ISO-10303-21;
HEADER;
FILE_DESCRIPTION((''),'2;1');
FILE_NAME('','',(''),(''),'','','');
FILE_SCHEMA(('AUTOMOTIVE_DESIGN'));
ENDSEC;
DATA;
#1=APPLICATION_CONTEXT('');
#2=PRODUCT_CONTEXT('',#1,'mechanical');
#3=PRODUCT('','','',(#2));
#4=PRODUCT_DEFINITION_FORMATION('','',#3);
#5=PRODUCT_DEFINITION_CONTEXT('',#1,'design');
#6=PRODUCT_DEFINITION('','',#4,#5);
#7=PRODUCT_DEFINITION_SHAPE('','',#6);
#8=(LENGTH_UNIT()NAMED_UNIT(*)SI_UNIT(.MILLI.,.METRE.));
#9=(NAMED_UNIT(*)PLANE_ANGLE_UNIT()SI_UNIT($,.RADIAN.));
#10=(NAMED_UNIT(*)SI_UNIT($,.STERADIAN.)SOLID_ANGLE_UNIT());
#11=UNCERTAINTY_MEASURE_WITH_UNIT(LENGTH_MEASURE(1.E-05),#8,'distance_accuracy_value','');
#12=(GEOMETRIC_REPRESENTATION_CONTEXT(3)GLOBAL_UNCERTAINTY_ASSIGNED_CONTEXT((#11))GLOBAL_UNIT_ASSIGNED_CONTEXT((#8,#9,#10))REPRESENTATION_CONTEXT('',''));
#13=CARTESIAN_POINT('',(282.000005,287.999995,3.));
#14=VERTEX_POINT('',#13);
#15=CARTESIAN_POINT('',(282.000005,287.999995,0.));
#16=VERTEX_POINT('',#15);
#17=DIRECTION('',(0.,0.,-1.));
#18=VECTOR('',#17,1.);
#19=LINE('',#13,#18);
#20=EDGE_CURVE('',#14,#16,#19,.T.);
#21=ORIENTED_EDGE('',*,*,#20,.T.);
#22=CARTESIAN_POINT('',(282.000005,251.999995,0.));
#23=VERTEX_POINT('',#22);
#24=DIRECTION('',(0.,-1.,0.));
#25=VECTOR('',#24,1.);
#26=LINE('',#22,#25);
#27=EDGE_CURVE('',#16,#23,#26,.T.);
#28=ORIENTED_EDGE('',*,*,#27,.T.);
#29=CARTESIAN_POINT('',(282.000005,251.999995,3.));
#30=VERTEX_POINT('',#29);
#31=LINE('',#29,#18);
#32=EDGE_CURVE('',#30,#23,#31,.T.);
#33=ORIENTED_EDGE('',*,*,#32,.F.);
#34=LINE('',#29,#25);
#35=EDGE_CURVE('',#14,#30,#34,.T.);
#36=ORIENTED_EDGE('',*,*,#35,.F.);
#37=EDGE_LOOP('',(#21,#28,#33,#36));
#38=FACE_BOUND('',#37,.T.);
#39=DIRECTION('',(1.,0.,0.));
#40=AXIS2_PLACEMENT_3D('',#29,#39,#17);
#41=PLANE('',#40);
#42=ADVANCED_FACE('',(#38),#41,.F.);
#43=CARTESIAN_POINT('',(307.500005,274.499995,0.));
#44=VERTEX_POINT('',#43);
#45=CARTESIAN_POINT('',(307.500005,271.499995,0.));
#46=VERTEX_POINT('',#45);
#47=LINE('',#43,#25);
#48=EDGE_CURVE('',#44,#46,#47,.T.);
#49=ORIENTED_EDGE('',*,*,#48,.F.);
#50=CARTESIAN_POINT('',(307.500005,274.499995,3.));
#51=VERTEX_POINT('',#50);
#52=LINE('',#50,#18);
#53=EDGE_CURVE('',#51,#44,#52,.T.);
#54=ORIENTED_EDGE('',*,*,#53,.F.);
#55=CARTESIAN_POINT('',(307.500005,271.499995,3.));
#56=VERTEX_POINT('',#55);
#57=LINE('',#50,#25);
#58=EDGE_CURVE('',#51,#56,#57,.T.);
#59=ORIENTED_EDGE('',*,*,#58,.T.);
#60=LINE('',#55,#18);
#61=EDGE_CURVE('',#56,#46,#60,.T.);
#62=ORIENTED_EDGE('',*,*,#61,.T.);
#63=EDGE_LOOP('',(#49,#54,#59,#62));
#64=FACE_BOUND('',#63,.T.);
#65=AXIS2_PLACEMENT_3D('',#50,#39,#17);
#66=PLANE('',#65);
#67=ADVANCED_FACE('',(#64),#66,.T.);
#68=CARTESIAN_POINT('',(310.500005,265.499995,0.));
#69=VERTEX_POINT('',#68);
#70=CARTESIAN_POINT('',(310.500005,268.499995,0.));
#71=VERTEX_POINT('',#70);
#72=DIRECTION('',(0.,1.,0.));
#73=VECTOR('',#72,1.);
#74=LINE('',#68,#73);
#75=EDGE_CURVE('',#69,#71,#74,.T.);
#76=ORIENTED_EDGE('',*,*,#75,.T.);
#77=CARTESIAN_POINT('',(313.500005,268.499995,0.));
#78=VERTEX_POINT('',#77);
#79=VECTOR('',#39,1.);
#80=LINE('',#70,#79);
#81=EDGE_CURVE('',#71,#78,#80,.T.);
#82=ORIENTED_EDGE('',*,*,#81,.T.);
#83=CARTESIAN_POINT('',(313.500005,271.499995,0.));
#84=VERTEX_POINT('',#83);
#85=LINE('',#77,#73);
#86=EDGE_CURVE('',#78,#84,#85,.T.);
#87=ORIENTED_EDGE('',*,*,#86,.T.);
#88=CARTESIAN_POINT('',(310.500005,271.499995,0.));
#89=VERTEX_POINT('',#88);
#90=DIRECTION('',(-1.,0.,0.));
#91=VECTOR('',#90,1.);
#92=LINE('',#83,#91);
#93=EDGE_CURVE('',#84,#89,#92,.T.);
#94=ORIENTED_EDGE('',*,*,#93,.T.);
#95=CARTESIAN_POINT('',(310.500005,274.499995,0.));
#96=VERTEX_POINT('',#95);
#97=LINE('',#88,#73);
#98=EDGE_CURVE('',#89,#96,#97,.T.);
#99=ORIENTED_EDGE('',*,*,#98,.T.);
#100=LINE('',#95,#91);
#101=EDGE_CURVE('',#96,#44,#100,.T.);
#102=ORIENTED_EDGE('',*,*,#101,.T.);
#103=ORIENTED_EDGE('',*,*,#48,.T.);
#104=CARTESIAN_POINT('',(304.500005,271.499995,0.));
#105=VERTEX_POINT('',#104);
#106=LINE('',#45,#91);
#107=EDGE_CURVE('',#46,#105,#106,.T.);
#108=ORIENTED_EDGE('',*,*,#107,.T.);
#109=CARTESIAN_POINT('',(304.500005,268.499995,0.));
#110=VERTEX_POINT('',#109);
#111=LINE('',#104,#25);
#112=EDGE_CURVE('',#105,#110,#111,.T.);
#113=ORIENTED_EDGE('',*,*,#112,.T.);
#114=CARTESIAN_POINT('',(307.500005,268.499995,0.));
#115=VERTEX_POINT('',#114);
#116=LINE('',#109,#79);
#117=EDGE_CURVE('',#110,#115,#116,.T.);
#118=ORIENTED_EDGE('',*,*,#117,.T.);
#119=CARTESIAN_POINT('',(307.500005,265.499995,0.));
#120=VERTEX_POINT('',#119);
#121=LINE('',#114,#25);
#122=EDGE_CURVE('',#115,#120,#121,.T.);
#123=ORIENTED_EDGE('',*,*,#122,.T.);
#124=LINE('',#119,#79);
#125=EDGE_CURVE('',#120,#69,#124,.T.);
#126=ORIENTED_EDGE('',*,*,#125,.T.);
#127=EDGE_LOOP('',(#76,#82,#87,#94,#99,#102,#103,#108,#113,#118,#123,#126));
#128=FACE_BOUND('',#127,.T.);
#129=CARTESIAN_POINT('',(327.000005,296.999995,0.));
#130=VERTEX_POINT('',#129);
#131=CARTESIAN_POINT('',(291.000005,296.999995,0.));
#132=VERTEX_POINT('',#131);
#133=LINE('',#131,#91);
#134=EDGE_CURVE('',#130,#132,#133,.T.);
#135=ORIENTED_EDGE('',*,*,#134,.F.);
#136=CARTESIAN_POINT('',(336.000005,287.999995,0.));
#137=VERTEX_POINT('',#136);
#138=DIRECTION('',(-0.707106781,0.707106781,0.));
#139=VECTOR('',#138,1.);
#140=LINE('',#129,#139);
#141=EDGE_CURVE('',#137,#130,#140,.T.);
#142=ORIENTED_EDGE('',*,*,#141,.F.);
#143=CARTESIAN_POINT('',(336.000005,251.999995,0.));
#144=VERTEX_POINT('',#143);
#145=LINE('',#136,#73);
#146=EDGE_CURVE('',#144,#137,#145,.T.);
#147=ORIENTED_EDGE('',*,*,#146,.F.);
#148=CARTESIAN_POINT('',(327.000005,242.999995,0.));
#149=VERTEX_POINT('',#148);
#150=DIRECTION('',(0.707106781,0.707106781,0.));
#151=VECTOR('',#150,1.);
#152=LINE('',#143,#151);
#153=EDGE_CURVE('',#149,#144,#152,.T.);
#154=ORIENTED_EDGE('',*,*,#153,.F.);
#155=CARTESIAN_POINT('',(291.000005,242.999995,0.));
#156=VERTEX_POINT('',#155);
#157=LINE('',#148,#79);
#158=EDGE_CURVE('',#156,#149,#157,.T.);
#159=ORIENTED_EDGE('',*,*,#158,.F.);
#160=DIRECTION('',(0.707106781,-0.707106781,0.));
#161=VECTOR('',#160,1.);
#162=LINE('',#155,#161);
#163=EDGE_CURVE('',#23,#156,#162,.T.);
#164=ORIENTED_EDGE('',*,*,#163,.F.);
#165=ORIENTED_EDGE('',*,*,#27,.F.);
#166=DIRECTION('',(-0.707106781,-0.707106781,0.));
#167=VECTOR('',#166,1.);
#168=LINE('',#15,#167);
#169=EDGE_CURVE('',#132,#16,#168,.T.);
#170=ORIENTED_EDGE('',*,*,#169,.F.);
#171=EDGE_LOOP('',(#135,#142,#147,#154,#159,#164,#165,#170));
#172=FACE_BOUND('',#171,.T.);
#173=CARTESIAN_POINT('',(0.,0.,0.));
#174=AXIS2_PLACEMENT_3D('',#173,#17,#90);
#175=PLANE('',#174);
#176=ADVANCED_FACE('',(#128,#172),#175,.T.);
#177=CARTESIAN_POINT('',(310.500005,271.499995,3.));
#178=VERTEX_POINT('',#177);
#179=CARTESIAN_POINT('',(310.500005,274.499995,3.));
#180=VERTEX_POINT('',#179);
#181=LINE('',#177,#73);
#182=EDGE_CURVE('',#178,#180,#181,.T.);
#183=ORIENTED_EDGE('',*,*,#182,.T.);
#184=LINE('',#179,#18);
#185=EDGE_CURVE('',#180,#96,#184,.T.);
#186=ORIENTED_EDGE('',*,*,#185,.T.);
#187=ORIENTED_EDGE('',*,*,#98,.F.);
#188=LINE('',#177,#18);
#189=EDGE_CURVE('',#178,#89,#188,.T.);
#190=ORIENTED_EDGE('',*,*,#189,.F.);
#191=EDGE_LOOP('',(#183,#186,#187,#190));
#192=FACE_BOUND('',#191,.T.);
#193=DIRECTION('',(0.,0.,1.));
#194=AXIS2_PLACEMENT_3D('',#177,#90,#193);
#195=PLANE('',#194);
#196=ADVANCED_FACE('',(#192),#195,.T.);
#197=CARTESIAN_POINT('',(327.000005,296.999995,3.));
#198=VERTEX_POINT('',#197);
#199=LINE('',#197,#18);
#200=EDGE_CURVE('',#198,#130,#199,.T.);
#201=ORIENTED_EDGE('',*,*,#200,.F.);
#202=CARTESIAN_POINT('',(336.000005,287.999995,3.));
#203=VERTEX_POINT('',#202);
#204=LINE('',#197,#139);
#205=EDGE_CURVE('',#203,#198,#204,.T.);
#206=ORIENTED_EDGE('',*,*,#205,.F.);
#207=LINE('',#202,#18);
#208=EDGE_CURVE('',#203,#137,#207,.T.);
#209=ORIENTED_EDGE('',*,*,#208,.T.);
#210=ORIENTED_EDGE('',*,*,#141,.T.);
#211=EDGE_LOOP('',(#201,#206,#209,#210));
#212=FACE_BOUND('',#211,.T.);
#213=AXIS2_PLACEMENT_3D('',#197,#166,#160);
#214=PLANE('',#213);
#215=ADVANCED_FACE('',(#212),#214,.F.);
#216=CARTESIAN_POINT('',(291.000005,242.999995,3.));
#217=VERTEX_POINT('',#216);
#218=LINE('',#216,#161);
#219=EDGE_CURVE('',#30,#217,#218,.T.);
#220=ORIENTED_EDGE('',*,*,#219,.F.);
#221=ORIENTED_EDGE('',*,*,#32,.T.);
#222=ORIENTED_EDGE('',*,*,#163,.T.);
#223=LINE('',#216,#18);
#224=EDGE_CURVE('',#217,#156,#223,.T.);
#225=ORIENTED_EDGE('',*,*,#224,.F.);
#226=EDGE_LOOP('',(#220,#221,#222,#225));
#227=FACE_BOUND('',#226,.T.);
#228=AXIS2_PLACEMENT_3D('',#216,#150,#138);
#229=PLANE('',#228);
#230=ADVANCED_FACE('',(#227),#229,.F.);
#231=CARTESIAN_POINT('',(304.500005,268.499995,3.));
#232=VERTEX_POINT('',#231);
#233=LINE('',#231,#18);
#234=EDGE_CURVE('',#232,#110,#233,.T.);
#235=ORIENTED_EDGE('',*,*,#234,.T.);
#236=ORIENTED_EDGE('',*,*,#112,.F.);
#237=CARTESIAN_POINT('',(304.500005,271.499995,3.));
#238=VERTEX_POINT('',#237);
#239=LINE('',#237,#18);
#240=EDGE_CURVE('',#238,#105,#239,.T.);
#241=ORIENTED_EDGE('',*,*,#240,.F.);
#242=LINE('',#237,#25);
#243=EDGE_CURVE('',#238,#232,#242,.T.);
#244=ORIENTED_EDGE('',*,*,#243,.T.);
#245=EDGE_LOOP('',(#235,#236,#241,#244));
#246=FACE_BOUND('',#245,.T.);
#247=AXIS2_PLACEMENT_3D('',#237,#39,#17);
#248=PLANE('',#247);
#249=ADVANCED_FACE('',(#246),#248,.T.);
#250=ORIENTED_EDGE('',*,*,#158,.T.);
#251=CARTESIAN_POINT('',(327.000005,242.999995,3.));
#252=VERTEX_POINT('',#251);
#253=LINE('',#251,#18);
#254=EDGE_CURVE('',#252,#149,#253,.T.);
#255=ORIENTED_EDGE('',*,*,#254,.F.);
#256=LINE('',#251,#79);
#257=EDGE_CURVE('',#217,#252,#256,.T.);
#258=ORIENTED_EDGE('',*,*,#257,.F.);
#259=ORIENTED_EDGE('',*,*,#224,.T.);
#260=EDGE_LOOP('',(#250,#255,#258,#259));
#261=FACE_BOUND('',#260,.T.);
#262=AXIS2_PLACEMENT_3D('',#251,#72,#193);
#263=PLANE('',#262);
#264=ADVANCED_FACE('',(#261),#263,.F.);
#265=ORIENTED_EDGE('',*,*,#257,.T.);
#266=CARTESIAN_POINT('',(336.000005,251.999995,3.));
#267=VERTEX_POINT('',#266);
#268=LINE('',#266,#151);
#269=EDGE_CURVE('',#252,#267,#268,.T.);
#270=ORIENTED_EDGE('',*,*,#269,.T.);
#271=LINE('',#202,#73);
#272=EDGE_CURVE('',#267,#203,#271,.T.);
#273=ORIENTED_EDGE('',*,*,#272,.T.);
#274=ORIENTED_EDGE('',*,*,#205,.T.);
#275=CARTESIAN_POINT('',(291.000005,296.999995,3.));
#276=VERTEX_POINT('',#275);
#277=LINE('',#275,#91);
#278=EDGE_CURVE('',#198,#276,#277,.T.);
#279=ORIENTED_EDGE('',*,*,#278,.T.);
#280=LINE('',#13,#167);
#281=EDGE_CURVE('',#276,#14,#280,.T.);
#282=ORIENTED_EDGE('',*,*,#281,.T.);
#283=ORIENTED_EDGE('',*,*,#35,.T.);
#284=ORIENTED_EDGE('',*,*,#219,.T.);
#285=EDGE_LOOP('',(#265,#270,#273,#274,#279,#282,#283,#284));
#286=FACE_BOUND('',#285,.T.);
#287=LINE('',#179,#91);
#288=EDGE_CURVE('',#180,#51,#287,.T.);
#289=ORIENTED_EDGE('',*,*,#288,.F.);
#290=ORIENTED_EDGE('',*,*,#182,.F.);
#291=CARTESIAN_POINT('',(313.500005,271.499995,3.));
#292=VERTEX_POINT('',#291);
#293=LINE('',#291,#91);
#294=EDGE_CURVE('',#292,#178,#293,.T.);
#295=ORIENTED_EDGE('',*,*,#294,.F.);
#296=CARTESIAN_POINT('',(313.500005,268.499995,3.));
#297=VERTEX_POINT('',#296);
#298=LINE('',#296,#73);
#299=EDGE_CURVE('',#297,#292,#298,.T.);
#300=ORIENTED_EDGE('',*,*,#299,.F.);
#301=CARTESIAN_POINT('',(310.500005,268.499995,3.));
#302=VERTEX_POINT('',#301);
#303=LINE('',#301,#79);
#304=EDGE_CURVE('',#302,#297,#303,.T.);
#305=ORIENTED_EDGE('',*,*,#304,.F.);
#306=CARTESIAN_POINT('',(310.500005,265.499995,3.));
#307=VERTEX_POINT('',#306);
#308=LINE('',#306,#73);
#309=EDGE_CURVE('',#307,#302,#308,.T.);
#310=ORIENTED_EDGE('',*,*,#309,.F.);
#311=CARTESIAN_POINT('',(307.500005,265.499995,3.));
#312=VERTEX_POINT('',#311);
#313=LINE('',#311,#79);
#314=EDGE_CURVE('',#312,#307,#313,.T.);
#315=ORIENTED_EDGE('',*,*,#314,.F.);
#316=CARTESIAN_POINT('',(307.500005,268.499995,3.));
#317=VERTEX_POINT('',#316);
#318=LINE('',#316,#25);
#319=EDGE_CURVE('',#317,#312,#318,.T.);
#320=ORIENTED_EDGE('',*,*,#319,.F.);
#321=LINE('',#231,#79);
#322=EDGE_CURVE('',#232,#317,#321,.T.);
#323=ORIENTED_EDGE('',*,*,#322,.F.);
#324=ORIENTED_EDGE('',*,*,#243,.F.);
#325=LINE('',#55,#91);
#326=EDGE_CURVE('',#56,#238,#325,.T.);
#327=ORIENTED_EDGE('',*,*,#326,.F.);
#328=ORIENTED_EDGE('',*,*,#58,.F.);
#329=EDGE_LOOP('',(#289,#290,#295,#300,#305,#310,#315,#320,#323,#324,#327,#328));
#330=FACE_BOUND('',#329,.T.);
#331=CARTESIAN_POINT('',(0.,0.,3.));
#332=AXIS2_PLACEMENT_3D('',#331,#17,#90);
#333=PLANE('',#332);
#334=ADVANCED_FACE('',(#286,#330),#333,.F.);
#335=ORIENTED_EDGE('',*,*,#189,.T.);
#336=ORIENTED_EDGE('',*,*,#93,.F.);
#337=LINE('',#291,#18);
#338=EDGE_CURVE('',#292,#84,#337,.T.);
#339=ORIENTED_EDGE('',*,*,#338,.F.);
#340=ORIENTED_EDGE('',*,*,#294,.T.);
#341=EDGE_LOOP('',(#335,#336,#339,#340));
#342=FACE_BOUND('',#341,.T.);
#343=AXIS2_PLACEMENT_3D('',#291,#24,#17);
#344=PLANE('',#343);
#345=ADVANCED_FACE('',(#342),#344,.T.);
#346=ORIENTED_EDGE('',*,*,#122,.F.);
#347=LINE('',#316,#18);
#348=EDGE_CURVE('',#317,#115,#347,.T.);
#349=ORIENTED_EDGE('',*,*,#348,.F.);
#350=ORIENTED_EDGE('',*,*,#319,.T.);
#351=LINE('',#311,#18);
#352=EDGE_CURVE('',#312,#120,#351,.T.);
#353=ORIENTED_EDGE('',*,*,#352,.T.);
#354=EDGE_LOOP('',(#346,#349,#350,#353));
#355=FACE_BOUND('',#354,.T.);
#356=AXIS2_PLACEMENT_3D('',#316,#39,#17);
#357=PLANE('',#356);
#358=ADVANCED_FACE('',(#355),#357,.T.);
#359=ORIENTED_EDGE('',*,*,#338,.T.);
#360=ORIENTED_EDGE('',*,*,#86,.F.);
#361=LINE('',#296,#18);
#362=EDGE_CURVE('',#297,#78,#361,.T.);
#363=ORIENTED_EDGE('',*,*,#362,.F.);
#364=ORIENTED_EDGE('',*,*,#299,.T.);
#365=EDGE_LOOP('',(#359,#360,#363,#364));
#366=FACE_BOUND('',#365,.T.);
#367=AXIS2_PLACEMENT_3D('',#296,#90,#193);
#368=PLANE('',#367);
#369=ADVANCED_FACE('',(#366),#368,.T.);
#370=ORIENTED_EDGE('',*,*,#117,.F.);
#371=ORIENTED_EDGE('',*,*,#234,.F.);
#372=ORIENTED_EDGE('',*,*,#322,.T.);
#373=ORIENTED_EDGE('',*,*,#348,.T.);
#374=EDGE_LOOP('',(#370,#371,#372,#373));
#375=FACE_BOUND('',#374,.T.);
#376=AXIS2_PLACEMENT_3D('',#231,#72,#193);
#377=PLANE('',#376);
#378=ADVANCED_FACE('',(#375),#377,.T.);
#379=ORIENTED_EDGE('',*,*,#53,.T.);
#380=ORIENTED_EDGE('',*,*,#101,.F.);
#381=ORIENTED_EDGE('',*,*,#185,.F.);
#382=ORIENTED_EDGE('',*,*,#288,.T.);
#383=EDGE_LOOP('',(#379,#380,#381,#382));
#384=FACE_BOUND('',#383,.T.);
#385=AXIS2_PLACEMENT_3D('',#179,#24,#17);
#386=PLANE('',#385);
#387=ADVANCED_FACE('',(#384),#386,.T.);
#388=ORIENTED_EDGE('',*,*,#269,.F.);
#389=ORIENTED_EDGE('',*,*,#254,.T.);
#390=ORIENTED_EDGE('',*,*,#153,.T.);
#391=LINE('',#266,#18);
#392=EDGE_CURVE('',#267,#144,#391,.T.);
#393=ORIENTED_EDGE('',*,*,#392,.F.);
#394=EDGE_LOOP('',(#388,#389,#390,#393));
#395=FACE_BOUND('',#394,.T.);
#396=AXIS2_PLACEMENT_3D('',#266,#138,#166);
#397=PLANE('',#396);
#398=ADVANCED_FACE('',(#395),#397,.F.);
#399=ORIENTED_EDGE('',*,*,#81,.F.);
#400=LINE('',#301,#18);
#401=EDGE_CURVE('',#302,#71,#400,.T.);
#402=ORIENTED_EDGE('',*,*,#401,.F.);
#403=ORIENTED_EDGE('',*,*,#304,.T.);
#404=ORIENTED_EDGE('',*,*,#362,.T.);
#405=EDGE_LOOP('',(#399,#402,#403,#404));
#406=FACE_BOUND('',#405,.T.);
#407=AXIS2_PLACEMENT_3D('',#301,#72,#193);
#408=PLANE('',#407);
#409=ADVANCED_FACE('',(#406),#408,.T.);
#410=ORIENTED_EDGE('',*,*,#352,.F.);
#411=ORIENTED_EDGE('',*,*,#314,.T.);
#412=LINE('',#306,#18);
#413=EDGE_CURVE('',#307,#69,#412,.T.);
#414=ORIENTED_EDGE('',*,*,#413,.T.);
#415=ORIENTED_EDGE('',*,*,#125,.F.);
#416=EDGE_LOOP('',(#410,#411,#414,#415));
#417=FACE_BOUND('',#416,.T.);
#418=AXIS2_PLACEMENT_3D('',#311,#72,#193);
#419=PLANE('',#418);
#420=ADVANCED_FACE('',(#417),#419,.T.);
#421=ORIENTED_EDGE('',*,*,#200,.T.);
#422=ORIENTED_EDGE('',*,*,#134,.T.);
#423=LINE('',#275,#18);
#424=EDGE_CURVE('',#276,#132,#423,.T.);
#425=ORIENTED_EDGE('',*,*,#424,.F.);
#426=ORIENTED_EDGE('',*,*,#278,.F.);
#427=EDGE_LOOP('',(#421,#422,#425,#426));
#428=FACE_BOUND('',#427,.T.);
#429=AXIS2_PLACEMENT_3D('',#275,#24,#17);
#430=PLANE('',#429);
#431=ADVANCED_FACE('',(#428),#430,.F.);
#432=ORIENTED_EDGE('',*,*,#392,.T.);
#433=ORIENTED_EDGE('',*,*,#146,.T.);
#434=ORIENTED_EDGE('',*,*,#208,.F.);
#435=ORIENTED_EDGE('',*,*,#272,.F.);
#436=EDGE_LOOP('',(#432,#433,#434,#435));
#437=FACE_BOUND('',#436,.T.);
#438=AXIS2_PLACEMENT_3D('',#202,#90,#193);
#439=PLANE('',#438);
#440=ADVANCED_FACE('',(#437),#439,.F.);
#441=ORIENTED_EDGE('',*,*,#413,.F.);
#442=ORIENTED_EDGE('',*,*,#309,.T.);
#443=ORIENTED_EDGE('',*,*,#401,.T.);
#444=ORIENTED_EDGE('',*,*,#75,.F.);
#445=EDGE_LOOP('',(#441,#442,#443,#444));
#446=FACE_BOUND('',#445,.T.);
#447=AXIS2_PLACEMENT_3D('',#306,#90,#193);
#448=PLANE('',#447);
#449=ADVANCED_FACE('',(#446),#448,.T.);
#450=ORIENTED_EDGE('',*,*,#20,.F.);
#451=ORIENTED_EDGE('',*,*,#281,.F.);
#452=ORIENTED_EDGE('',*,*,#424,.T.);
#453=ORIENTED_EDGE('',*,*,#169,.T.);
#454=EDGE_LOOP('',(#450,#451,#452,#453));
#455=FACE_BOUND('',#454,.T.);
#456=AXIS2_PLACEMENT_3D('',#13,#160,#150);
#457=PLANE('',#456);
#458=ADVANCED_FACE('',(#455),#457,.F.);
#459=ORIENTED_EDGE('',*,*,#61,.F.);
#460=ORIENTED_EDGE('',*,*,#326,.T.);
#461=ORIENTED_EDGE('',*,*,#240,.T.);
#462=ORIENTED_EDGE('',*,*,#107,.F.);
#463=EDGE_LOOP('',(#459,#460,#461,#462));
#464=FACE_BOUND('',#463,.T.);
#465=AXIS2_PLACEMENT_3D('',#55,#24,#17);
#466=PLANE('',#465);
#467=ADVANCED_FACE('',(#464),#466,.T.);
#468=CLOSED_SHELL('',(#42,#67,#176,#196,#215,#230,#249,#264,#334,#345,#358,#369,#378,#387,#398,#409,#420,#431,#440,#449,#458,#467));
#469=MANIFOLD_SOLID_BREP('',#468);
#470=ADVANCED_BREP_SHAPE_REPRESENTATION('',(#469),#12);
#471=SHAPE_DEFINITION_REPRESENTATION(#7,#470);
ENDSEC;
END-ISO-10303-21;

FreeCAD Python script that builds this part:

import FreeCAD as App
import Part
import Sketcher

V = App.Vector
Q = App.Units.Quantity


def add_polygon(sketch, points):
    """Adds a closed chain of lines whose ends are joined by coincident constraints."""
    first, n = sketch.GeometryCount, len(points)
    for a, b in zip(points, points[1:] + points[:1]):
        sketch.addGeometry(Part.LineSegment(App.Vector(*a, 0), App.Vector(*b, 0)), False)
    for i in range(n):
        sketch.addConstraint(Sketcher.Constraint("Coincident", first + i, 2, first + (i + 1) % n, 1))

doc = App.newDocument("Part")
params = doc.addObject("Spreadsheet::Sheet", "Params")
for row, (alias, value) in enumerate([
    ("sketch1_width", "36 mm"),
    ("sketch1_width2", "3 mm"),
    ("pad1_length", "3 mm"),
], start=1):
    params.set(f"A{row}", alias)
    params.set(f"B{row}", "=" + value)
    params.setAlias(f"B{row}", alias)

body = doc.addObject("PartDesign::Body", "Body")

# Sketch on XY plane
sketch1 = body.newObject("Sketcher::SketchObject", "Sketch")
sketch1.AttachmentSupport = (doc.getObject("XY_Plane"), [""])
sketch1.MapMode = "FlatFace"
add_polygon(sketch1, [(327, 243), (336, 252), (336, 288), (327, 297), (291, 297), (282, 288), (282, 252), (291, 243)])  # lines 0-7
add_polygon(sketch1, [(307.5, 274.5), (310.5, 274.5), (310.5, 271.5), (313.5, 271.5), (313.5, 268.5), (310.5, 268.5), (310.5, 265.5), (307.5, 265.5), (307.5, 268.5), (304.5, 268.5), (304.5, 271.5), (307.5, 271.5)])  # lines 8-19
sketch1.addConstraint(Sketcher.Constraint("Vertical", 1))
sketch1.addConstraint(Sketcher.Constraint("Horizontal", 3))
sketch1.addConstraint(Sketcher.Constraint("Vertical", 5))
sketch1.addConstraint(Sketcher.Constraint("Horizontal", 7))
sketch1.addConstraint(Sketcher.Constraint("Horizontal", 8))
sketch1.addConstraint(Sketcher.Constraint("Vertical", 9))
sketch1.addConstraint(Sketcher.Constraint("Horizontal", 10))
sketch1.addConstraint(Sketcher.Constraint("Vertical", 11))
sketch1.addConstraint(Sketcher.Constraint("Horizontal", 12))
sketch1.addConstraint(Sketcher.Constraint("Vertical", 13))
sketch1.addConstraint(Sketcher.Constraint("Horizontal", 14))
sketch1.addConstraint(Sketcher.Constraint("Vertical", 15))
sketch1.addConstraint(Sketcher.Constraint("Horizontal", 16))
sketch1.addConstraint(Sketcher.Constraint("Vertical", 17))
sketch1.addConstraint(Sketcher.Constraint("Horizontal", 18))
sketch1.addConstraint(Sketcher.Constraint("Vertical", 19))
sketch1.addConstraint(Sketcher.Constraint("Perpendicular", 0, 2))
sketch1.addConstraint(Sketcher.Constraint("Perpendicular", 2, 4))
sketch1.addConstraint(Sketcher.Constraint("Perpendicular", 4, 6))
sketch1.addConstraint(Sketcher.Constraint("Horizontal", 1, 2, 4, 2))
sketch1.addConstraint(Sketcher.Constraint("Horizontal", 0, 2, 5, 2))
sketch1.addConstraint(Sketcher.Constraint("Horizontal", 12, 2, 15, 2))
sketch1.addConstraint(Sketcher.Constraint("Horizontal", 10, 2, 17, 2))
sketch1.addConstraint(Sketcher.Constraint("Vertical", 3, 2, 6, 2))
sketch1.addConstraint(Sketcher.Constraint("Vertical", 2, 2, 7, 2))
sketch1.addConstraint(Sketcher.Constraint("Vertical", 9, 2, 12, 2))
sketch1.addConstraint(Sketcher.Constraint("Vertical", 15, 2, 18, 2))
sketch1.addConstraint(Sketcher.Constraint("Equal", 8, 10))
sketch1.addConstraint(Sketcher.Constraint("Equal", 14, 16))
sketch1.addConstraint(Sketcher.Constraint("Equal", 7, 1))
sketch1.addConstraint(Sketcher.Constraint("Equal", 18, 9))
sketch1.addConstraint(Sketcher.Constraint("Equal", 9, 11))
sketch1.addConstraint(Sketcher.Constraint("Equal", 11, 13))
sketch1.addConstraint(Sketcher.Constraint("DistanceX", 3, 2, 3, 1, Q("36 mm")))
sketch1.addConstraint(Sketcher.Constraint("DistanceX", 8, 1, 8, 2, Q("3 mm")))
sketch1.addConstraint(Sketcher.Constraint("DistanceX", 2, 2, 1, 2, Q("9 mm")))
sketch1.addConstraint(Sketcher.Constraint("DistanceX", 8, 2, 2, 2, Q("16.5 mm")))
sketch1.addConstraint(Sketcher.Constraint("DistanceY", 8, 2, 2, 2, Q("22.5 mm")))
sketch1.addConstraint(Sketcher.Constraint("DistanceX", -1, 1, 0, 2, Q("336.000005 mm")))
sketch1.addConstraint(Sketcher.Constraint("DistanceY", -1, 1, 0, 2, Q("251.999995 mm")))
sketch1.setExpression("Constraints[53]", "Params.sketch1_width")
sketch1.setExpression("Constraints[54]", "Params.sketch1_width2")
pad1 = body.newObject("PartDesign::Pad", "Pad")
pad1.Profile = sketch1
pad1.setExpression("Length", "Params.pad1_length")

doc.recompute()
